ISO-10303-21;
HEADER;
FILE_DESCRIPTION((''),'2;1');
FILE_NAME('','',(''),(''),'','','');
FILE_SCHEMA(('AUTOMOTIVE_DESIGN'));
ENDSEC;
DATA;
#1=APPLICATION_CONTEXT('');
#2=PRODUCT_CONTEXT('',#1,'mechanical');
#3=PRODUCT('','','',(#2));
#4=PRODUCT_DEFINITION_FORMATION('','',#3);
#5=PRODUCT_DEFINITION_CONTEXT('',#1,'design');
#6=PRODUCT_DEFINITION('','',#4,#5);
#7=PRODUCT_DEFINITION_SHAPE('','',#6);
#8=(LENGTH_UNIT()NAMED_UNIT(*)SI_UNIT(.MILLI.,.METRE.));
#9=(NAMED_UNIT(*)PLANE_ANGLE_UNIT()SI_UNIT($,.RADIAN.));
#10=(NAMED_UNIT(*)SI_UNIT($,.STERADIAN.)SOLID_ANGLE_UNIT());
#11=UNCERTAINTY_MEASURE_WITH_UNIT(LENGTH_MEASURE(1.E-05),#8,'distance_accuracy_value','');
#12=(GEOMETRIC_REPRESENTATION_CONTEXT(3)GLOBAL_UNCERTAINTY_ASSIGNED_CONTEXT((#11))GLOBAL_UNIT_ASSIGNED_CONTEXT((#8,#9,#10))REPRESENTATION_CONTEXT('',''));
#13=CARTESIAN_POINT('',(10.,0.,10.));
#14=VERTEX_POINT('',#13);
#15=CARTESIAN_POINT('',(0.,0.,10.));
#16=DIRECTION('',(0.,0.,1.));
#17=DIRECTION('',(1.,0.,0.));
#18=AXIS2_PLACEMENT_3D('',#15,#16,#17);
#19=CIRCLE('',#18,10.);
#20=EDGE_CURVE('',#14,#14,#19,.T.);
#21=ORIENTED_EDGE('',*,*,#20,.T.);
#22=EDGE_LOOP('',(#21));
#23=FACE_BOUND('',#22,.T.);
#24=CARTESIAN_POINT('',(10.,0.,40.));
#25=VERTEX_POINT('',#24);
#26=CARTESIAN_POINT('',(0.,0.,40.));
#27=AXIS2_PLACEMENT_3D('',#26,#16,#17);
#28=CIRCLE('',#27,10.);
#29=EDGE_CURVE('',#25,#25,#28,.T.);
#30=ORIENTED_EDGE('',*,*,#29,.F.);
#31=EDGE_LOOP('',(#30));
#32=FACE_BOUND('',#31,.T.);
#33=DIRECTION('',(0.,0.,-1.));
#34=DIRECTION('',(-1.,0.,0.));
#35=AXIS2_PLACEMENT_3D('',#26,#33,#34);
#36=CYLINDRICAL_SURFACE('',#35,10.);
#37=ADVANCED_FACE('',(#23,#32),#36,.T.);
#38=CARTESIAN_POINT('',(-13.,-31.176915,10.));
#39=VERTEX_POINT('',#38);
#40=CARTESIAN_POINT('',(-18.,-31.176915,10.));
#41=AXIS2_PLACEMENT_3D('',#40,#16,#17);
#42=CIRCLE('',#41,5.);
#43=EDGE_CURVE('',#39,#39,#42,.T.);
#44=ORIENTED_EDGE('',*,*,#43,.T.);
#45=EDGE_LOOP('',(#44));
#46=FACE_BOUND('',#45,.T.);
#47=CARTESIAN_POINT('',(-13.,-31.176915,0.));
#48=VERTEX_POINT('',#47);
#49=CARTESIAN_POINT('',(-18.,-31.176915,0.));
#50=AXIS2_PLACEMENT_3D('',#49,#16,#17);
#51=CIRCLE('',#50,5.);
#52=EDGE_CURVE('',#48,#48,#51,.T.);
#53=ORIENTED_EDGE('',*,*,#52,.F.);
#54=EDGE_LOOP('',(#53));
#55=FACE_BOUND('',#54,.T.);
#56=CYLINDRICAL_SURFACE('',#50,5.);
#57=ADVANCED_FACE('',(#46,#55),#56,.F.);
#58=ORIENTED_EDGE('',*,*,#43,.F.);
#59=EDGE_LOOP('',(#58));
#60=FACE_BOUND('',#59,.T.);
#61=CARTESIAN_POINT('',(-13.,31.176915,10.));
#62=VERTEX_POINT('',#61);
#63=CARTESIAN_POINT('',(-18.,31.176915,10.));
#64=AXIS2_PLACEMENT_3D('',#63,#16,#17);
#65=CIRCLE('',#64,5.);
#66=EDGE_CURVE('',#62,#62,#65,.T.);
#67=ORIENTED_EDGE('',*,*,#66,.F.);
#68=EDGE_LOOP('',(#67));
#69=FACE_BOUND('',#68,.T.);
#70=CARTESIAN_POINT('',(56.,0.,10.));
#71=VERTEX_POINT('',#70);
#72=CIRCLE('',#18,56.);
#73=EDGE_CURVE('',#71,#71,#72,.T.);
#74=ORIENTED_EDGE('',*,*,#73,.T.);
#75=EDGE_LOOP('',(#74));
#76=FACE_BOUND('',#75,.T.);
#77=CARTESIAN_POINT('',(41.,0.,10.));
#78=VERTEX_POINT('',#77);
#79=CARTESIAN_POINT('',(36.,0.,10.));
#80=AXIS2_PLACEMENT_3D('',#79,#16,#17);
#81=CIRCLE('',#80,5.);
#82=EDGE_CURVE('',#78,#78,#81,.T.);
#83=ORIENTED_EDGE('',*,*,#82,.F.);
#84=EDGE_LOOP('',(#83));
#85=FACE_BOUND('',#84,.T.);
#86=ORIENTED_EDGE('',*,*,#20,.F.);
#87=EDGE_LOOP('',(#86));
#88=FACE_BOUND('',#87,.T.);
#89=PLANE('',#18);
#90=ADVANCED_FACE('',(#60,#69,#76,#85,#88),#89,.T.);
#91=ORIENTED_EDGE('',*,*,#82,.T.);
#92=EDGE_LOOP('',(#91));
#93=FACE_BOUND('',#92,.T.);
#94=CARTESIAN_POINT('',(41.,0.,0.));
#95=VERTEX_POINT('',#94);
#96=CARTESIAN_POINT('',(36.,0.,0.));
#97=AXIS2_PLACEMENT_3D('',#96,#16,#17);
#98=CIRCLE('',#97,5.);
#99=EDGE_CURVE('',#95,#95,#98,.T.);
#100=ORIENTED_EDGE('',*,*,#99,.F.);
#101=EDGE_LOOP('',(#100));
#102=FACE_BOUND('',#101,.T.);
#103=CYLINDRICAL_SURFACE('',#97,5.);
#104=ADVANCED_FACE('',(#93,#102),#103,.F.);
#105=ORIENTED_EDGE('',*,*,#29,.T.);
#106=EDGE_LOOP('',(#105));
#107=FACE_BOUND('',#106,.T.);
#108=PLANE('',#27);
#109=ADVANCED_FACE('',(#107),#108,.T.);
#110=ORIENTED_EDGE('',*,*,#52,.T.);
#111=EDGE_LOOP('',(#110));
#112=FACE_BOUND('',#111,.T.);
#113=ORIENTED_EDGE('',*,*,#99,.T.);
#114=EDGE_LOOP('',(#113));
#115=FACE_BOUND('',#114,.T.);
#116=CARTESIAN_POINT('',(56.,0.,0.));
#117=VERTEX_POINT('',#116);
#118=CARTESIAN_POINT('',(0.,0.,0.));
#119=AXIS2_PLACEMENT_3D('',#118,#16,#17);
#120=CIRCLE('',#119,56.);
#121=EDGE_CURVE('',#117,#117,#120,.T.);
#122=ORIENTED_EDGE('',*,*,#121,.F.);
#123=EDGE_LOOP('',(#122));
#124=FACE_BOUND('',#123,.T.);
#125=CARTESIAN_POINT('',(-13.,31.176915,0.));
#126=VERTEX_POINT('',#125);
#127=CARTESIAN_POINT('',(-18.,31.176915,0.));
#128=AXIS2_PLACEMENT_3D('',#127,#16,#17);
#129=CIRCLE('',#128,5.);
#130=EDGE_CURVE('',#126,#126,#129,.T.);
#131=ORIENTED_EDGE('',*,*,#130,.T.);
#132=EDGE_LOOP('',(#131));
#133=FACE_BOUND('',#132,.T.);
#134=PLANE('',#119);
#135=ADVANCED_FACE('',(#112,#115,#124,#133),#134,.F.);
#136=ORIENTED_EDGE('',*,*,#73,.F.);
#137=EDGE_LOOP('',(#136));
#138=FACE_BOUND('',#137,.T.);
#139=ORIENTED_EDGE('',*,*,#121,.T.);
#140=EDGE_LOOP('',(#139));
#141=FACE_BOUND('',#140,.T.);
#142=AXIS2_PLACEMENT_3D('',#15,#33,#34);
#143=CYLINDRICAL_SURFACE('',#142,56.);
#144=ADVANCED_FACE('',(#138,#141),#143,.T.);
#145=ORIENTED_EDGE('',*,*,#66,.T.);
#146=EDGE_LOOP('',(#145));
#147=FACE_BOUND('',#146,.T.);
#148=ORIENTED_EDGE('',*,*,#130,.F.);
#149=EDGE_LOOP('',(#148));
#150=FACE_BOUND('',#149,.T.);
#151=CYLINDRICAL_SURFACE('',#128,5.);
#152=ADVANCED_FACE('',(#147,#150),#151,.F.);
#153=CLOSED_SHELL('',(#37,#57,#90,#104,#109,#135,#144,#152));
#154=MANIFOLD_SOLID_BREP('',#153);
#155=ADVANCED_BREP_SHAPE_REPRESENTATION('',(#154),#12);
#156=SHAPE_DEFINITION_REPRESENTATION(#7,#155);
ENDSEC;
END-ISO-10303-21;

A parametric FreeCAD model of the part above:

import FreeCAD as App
import Part
import Sketcher

doc = App.newDocument("Part")
body = doc.addObject("PartDesign::Body", "Body")

sketch1 = body.newObject("Sketcher::SketchObject", "Sketch")
sketch1.AttachmentSupport = (doc.getObject("XY_Plane"), [""])
sketch1.MapMode = "FlatFace"
sketch1.addGeometry(Part.Circle(App.Vector(0, 0, 0), App.Vector(0, 0, 1), 56), False)
sketch1.addConstraint(Sketcher.Constraint("Coincident", 0, 3, -1, 1))
sketch1.addConstraint(Sketcher.Constraint("Diameter", 0, 112.0))
pad1 = body.newObject("PartDesign::Pad", "Pad")
pad1.Profile = sketch1
pad1.Length = 10

sketch2 = body.newObject("Sketcher::SketchObject", "Sketch001")
sketch2.AttachmentSupport = (doc.getObject("XY_Plane"), [""])
sketch2.MapMode = "FlatFace"
sketch2.AttachmentOffset = App.Placement(App.Vector(0, 0, 10), App.Rotation())
sketch2.addGeometry(Part.Circle(App.Vector(0, 0, 0), App.Vector(0, 0, 1), 10), False)
sketch2.addConstraint(Sketcher.Constraint("Coincident", 0, 3, -1, 1))
sketch2.addConstraint(Sketcher.Constraint("Diameter", 0, 20.0))
pad2 = body.newObject("PartDesign::Pad", "Pad001")
pad2.Profile = sketch2
pad2.Length = 30

sketch3 = body.newObject("Sketcher::SketchObject", "Sketch002")
sketch3.AttachmentSupport = (doc.getObject("XY_Plane"), [""])
sketch3.MapMode = "FlatFace"
sketch3.AttachmentOffset = App.Placement(App.Vector(0, 0, 10), App.Rotation())
sketch3.addGeometry(Part.Circle(App.Vector(36, 0, 0), App.Vector(0, 0, 1), 5), False)
sketch3.addGeometry(Part.Circle(App.Vector(-18, 31.176915, 0), App.Vector(0, 0, 1), 5), False)
sketch3.addGeometry(Part.Circle(App.Vector(-18, -31.176915, 0), App.Vector(0, 0, 1), 5), False)
sketch3.addConstraint(Sketcher.Constraint("Equal", 0, 1))
sketch3.addConstraint(Sketcher.Constraint("Equal", 1, 2))
sketch3.addConstraint(Sketcher.Constraint("Symmetric", 1, 3, 2, 3, -1))
sketch3.addConstraint(Sketcher.Constraint("PointOnObject", 0, 3, -1))
sketch3.addConstraint(Sketcher.Constraint("Diameter", 0, 10.0))
sketch3.addConstraint(Sketcher.Constraint("DistanceX", -1, 1, 0, 3, 36.0))
sketch3.addConstraint(Sketcher.Constraint("DistanceX", 1, 3, -1, 1, 18.0))
sketch3.addConstraint(Sketcher.Constraint("DistanceY", 2, 3, 1, 3, 62.353829))
pocket1 = body.newObject("PartDesign::Pocket", "Pocket")
pocket1.Profile = sketch3
pocket1.Length = 10

doc.recompute()
